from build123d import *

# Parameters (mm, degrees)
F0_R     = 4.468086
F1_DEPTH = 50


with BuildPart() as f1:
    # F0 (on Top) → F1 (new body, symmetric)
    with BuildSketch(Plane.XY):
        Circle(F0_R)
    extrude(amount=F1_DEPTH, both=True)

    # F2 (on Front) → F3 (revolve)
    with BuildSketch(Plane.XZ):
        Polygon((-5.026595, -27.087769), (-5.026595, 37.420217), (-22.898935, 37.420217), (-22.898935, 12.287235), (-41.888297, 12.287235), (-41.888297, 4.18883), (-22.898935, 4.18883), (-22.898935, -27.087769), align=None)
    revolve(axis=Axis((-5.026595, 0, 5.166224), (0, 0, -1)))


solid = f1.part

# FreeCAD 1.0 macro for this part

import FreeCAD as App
import Part
import Sketcher
from FreeCAD import Vector
Q = App.Units.Quantity

doc = App.newDocument("Part")
body = doc.addObject("PartDesign::Body", "Body")

# Sketch on XY plane
sketch1 = body.newObject("Sketcher::SketchObject", "Sketch")
sketch1.AttachmentSupport = (doc.getObject("XY_Plane"), [""])
sketch1.MapMode = "FlatFace"
sketch1.addGeometry(Part.Circle(Vector(0, 0, 0), Vector(0, 0, 1), 4.468086), False)
sketch1.addConstraint([
    Sketcher.Constraint("Coincident", 0, 3, -1, 1),
    Sketcher.Constraint("Diameter", 0, Q("8.936172 mm")),
])
pad1 = body.newObject("PartDesign::Pad", "Pad")
pad1.Profile = sketch1
pad1.Length = 100
pad1.Midplane = True

# Sketch on XZ plane
sketch2 = body.newObject("Sketcher::SketchObject", "Sketch001")
sketch2.AttachmentSupport = (doc.getObject("XZ_Plane"), [""])
sketch2.MapMode = "FlatFace"
sketch2.addGeometry([
    Part.LineSegment(Vector(-5.026595, -27.087769, 0), Vector(-5.026595, 37.420217, 0)),  # 0
    Part.LineSegment(Vector(-5.026595, 37.420217, 0), Vector(-22.898935, 37.420217, 0)),  # 1
    Part.LineSegment(Vector(-22.898935, 37.420217, 0), Vector(-22.898935, 12.287235, 0)),  # 2
    Part.LineSegment(Vector(-22.898935, 12.287235, 0), Vector(-41.888297, 12.287235, 0)),  # 3
    Part.LineSegment(Vector(-41.888297, 12.287235, 0), Vector(-41.888297, 4.18883, 0)),  # 4
    Part.LineSegment(Vector(-41.888297, 4.18883, 0), Vector(-22.898935, 4.18883, 0)),  # 5
    Part.LineSegment(Vector(-22.898935, 4.18883, 0), Vector(-22.898935, -27.087769, 0)),  # 6
    Part.LineSegment(Vector(-22.898935, -27.087769, 0), Vector(-5.026595, -27.087769, 0)),  # 7
], False)
sketch2.addGeometry(Part.LineSegment(Vector(-5.026595, 37.420217, 0), Vector(-5.026595, -27.087769, 0)), True)  # axis
sketch2.addConstraint([
    Sketcher.Constraint("Coincident", 0, 2, 1, 1),
    Sketcher.Constraint("Coincident", 1, 2, 2, 1),
    Sketcher.Constraint("Coincident", 2, 2, 3, 1),
    Sketcher.Constraint("Coincident", 3, 2, 4, 1),
    Sketcher.Constraint("Coincident", 4, 2, 5, 1),
    Sketcher.Constraint("Coincident", 5, 2, 6, 1),
    Sketcher.Constraint("Coincident", 6, 2, 7, 1),
    Sketcher.Constraint("Coincident", 7, 2, 0, 1),
    Sketcher.Constraint("Vertical", 0),
    Sketcher.Constraint("Horizontal", 1),
    Sketcher.Constraint("Vertical", 2),
    Sketcher.Constraint("Horizontal", 3),
    Sketcher.Constraint("Vertical", 4),
    Sketcher.Constraint("Horizontal", 5),
    Sketcher.Constraint("Vertical", 6),
    Sketcher.Constraint("Horizontal", 7),
    Sketcher.Constraint("Vertical", 8),
    Sketcher.Constraint("Coincident", 8, 1, 0, 2),
    Sketcher.Constraint("Horizontal", 6, 2, 8, 2),
    Sketcher.Constraint("Vertical", 2, 2, 5, 2),
    Sketcher.Constraint("DistanceY", 6, 2, 6, 1, Q("31.276599 mm")),
    Sketcher.Constraint("DistanceX", 1, 2, 1, 1, Q("17.87234 mm")),
    Sketcher.Constraint("DistanceX", 3, 2, 3, 1, Q("18.989362 mm")),
    Sketcher.Constraint("DistanceY", 2, 2, 2, 1, Q("25.132982 mm")),
    Sketcher.Constraint("DistanceY", 0, 1, 0, 2, Q("64.507986 mm")),
    Sketcher.Constraint("DistanceY", -1, 1, 4, 2, Q("4.18883 mm")),
    Sketcher.Constraint("DistanceX", 0, 2, -1, 1, Q("5.026595 mm")),
])
revolution = body.newObject("PartDesign::Revolution", "Revolution")
revolution.Profile = sketch2
revolution.ReferenceAxis = (sketch2, ["Axis0"])
revolution.Angle = 360

doc.recompute()
